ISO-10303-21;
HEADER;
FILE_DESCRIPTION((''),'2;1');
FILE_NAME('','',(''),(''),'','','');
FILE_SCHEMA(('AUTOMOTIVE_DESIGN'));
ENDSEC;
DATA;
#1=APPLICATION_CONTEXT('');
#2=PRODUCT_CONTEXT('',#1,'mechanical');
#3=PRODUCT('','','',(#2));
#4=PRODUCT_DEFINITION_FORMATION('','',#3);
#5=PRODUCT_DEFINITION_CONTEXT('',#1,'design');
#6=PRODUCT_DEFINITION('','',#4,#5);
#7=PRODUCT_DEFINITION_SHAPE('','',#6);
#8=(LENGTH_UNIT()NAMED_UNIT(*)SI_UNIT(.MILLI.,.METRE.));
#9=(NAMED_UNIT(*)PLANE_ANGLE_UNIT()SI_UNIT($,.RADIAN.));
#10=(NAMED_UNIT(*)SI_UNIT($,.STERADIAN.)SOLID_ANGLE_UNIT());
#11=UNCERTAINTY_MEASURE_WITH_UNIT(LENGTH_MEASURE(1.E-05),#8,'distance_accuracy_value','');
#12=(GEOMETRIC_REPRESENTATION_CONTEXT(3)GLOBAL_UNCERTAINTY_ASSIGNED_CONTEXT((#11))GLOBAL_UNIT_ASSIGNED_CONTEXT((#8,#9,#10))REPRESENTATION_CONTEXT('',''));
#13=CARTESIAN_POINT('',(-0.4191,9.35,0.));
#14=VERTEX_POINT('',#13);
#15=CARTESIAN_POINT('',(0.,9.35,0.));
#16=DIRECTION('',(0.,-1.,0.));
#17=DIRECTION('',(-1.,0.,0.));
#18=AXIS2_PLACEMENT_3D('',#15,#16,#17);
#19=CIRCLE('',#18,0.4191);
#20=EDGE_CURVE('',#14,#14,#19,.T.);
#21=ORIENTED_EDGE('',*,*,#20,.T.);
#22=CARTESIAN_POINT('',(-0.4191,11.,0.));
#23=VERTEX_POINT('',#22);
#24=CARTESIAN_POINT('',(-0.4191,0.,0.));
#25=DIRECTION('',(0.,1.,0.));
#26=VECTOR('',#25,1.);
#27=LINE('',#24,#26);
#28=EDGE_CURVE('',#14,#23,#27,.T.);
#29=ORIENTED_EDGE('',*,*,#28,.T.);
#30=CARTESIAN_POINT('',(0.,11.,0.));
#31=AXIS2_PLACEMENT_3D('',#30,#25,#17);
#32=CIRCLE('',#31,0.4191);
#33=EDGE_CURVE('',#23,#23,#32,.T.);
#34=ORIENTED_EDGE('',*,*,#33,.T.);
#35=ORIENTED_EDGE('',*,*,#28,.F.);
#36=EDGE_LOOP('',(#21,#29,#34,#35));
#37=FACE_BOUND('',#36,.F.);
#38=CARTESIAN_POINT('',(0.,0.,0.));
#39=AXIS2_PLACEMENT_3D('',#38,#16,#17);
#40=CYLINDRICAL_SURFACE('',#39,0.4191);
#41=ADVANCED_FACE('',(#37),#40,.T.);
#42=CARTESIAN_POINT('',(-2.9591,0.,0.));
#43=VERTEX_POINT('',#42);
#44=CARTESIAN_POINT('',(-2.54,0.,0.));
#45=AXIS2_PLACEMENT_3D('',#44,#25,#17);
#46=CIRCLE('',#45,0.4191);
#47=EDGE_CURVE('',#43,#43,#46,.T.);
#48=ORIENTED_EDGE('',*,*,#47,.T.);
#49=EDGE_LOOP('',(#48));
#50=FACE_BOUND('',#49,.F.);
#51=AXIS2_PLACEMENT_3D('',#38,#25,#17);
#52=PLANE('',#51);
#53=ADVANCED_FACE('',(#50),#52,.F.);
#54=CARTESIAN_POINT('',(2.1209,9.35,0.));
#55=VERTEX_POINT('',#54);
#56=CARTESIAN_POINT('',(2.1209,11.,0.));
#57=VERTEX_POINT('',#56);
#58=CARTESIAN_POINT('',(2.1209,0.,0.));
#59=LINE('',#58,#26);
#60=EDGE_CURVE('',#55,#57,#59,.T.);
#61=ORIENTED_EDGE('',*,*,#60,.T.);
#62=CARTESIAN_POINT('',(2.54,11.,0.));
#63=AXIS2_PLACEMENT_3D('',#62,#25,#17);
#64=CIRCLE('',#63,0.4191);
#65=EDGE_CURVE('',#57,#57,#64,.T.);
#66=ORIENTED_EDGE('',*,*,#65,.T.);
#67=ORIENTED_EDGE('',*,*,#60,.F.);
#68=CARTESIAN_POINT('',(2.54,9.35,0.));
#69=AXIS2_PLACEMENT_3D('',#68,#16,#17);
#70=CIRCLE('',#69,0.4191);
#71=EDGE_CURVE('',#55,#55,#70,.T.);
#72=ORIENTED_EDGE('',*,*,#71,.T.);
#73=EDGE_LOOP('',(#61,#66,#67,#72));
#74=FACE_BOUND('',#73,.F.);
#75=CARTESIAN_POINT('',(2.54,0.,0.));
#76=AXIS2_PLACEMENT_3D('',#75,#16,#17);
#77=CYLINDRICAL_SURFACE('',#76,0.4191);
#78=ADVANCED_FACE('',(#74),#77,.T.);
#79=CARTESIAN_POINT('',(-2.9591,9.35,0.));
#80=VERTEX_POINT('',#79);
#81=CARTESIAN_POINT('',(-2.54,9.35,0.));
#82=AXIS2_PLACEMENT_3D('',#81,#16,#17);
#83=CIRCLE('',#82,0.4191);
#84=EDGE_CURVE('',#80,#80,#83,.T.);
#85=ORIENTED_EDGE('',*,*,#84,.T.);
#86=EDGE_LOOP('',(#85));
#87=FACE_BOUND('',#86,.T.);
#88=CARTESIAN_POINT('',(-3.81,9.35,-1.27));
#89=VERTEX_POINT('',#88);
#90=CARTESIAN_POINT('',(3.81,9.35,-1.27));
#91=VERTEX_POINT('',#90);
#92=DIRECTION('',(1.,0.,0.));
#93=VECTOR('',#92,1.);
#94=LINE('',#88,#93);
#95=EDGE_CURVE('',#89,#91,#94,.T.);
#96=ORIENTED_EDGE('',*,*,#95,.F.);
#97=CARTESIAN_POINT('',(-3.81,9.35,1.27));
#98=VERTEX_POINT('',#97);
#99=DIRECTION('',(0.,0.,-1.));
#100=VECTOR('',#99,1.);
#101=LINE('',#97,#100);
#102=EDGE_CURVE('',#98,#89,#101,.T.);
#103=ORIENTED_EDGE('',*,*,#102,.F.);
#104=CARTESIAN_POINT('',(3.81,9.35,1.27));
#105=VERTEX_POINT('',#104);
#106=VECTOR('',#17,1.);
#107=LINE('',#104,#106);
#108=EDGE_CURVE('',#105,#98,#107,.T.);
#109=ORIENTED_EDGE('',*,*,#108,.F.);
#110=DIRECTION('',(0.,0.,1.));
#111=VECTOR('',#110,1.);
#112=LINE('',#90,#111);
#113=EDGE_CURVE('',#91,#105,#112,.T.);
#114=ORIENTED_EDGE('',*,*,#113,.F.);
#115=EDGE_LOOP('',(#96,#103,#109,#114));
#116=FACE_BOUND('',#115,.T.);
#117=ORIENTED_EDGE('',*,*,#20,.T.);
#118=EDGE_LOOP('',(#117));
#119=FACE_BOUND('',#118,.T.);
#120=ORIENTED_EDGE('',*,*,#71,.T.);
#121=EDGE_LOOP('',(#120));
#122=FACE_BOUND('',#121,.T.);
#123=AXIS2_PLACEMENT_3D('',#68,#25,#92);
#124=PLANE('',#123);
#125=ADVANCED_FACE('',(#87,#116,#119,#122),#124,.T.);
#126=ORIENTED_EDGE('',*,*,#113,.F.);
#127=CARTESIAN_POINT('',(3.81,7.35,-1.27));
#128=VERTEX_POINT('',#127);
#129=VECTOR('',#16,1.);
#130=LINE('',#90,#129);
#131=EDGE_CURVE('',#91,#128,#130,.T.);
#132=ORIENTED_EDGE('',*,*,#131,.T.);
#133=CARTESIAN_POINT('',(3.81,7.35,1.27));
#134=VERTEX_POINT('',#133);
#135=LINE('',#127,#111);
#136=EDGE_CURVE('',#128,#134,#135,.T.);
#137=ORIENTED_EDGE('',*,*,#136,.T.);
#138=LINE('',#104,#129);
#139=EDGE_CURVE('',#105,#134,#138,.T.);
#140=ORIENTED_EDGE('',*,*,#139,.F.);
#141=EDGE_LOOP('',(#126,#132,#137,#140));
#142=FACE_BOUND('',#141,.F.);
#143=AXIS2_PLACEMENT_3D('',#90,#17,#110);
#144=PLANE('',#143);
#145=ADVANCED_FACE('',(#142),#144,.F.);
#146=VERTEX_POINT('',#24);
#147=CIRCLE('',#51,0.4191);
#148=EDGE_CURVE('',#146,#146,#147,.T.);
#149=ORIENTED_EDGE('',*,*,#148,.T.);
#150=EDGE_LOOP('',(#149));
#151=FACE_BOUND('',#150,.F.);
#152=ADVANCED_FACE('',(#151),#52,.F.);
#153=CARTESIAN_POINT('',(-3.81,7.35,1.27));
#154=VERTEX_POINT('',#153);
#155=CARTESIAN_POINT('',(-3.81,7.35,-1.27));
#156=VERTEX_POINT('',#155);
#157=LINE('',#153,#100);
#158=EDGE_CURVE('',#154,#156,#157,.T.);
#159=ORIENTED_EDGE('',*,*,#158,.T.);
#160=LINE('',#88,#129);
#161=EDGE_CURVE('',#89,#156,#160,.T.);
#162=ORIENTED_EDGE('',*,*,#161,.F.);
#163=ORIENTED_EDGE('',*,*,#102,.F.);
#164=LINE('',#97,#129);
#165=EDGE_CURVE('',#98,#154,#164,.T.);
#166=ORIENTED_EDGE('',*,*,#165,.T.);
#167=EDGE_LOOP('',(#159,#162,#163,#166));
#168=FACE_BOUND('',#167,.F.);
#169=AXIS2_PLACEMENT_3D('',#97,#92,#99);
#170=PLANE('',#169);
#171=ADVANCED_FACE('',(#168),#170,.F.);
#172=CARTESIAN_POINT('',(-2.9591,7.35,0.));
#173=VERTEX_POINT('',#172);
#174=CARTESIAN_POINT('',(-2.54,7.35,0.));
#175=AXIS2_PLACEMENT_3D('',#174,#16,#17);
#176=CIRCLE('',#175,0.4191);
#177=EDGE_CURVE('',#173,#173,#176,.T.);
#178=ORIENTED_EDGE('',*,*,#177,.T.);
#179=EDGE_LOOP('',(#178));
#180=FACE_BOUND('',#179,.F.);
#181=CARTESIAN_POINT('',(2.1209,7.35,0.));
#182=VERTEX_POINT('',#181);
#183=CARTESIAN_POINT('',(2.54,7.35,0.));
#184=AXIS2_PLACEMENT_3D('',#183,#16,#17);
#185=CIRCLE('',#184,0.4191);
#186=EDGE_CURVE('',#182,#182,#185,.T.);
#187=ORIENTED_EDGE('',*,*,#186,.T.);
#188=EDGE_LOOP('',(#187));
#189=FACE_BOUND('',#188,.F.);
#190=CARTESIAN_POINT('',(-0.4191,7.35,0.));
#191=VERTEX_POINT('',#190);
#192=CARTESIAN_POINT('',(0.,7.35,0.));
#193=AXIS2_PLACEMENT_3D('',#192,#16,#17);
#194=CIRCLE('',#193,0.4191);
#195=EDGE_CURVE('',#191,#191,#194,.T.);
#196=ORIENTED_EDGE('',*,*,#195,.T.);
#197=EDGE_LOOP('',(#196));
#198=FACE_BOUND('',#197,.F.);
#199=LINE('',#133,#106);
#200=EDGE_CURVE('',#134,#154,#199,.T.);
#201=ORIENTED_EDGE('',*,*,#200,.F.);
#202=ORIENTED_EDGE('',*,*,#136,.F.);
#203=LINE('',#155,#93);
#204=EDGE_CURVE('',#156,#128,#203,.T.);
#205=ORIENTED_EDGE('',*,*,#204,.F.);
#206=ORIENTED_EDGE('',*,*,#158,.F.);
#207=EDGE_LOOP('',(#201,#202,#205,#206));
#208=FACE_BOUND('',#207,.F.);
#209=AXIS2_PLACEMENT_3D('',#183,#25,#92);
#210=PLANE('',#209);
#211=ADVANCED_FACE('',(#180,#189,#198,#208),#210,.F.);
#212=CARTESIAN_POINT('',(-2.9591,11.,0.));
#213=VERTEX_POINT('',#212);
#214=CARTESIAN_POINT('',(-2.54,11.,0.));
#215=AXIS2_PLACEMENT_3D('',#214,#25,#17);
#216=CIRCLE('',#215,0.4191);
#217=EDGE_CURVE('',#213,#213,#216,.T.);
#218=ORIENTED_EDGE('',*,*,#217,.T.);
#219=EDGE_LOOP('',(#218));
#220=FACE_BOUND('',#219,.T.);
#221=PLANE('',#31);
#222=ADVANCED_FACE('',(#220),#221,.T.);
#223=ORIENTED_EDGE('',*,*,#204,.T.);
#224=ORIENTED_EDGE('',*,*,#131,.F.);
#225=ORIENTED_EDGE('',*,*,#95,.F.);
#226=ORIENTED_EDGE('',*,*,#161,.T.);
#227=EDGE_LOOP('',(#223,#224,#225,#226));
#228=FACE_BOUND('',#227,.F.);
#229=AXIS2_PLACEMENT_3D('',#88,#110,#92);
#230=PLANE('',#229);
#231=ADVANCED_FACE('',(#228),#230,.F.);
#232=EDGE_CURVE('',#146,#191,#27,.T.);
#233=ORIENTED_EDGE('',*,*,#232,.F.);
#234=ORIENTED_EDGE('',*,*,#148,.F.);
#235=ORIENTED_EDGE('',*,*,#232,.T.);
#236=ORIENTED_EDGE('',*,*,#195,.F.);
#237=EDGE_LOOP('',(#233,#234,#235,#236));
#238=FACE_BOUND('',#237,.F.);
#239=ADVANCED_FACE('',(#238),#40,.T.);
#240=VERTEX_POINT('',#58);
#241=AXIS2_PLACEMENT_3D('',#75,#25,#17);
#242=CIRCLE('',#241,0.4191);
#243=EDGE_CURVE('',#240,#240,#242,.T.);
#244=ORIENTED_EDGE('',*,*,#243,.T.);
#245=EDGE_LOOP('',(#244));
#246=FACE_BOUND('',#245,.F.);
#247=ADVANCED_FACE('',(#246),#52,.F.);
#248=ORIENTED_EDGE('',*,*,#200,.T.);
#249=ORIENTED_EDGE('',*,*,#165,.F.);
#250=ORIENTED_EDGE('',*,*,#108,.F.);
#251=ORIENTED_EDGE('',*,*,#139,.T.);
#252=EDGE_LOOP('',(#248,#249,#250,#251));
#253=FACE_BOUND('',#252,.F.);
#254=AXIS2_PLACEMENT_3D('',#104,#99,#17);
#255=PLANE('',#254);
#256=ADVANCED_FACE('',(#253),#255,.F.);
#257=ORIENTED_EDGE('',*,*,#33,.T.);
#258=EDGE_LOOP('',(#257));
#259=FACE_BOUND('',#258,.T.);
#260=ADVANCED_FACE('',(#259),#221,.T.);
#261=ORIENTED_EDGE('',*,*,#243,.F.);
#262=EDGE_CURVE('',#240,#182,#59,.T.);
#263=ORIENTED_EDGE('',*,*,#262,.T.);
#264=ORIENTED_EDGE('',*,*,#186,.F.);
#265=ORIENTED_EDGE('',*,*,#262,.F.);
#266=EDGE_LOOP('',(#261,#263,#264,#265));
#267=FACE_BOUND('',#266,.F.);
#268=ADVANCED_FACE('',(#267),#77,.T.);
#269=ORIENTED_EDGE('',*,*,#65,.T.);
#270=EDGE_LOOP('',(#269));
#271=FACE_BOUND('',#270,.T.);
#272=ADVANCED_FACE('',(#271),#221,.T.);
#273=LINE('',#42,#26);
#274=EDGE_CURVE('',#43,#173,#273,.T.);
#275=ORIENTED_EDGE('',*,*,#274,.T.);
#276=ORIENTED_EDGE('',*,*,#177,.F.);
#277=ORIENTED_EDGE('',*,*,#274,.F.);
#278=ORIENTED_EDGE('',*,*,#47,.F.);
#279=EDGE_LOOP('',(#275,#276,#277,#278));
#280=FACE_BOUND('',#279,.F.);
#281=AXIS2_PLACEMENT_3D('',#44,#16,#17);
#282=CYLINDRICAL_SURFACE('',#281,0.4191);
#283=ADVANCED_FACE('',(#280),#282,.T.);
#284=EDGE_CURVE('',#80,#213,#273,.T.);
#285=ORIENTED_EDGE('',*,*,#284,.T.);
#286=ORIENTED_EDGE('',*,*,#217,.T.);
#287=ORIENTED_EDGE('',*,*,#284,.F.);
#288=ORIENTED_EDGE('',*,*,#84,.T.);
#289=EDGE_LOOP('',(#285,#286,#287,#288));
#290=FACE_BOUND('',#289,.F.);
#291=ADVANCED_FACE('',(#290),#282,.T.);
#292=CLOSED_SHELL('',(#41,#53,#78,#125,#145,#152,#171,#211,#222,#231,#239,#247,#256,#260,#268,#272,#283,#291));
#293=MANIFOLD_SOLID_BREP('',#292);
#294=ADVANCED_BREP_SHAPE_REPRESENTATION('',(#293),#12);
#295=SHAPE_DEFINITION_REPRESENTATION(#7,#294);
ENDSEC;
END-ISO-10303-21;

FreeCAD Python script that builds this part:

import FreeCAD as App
import Part
import Sketcher
from FreeCAD import Vector
Q = App.Units.Quantity

doc = App.newDocument("Part")
body = doc.addObject("PartDesign::Body", "Body")
body.AllowCompound = True

sketch1 = body.newObject("Sketcher::SketchObject", "Sketch")
sketch1.AttachmentSupport = (doc.getObject("XZ_Plane"), [""])
sketch1.MapMode = "FlatFace"
sketch1.addGeometry(Part.Circle(Vector(0, 0, 0), Vector(0, 0, 1), 0.42), False)
sketch1.addGeometry(Part.Circle(Vector(-2.54, 0, 0), Vector(0, 0, 1), 0.42), False)
sketch1.addGeometry(Part.Circle(Vector(2.54, 0, 0), Vector(0, 0, 1), 0.42), False)
sketch1.addConstraint(Sketcher.Constraint("Coincident", 0, 3, -1, 1))
sketch1.addConstraint(Sketcher.Constraint("Equal", 0, 1))
sketch1.addConstraint(Sketcher.Constraint("Equal", 1, 2))
sketch1.addConstraint(Sketcher.Constraint("Symmetric", 1, 3, 2, 3, -1, 1))
sketch1.addConstraint(Sketcher.Constraint("PointOnObject", 1, 3, -1))
sketch1.addConstraint(Sketcher.Constraint("Diameter", 0, Q("0.033 in")))
sketch1.addConstraint(Sketcher.Constraint("DistanceX", 1, 3, -1, 1, Q("0.1 in")))
pad1 = body.newObject("PartDesign::Pad", "Pad")
pad1.Profile = sketch1
pad1.Length = 11
pad1.Reversed = True

sketch2 = body.newObject("Sketcher::SketchObject", "Sketch001")
sketch2.AttachmentSupport = (doc.getObject("XZ_Plane"), [""])
sketch2.MapMode = "FlatFace"
sketch2.AttachmentOffset = App.Placement(Vector(0, 0, -0.3681102 * 25.4), App.Rotation())
sketch2.addGeometry(Part.LineSegment(Vector(3.8, -1.3, 0), Vector(-3.8, -1.3, 0)), False)
sketch2.addGeometry(Part.LineSegment(Vector(-3.8, -1.3, 0), Vector(-3.8, 1.3, 0)), False)
sketch2.addGeometry(Part.LineSegment(Vector(-3.8, 1.3, 0), Vector(3.8, 1.3, 0)), False)
sketch2.addGeometry(Part.LineSegment(Vector(3.8, 1.3, 0), Vector(3.8, -1.3, 0)), False)
sketch2.addConstraint(Sketcher.Constraint("Coincident", 0, 2, 1, 1))
sketch2.addConstraint(Sketcher.Constraint("Coincident", 1, 2, 2, 1))
sketch2.addConstraint(Sketcher.Constraint("Coincident", 2, 2, 3, 1))
sketch2.addConstraint(Sketcher.Constraint("Coincident", 3, 2, 0, 1))
sketch2.addConstraint(Sketcher.Constraint("Horizontal", 0))
sketch2.addConstraint(Sketcher.Constraint("Vertical", 1))
sketch2.addConstraint(Sketcher.Constraint("Horizontal", 2))
sketch2.addConstraint(Sketcher.Constraint("Vertical", 3))
sketch2.addConstraint(Sketcher.Constraint("Symmetric", 0, 2, 2, 2, -1, 1))
sketch2.addConstraint(Sketcher.Constraint("DistanceY", 1, 1, 1, 2, Q("0.1 in")))
sketch2.addConstraint(Sketcher.Constraint("DistanceX", 0, 2, -1, 1, Q("0.15 in")))
pad2 = body.newObject("PartDesign::Pad", "Pad001")
pad2.Profile = sketch2
pad2.Length = 2

doc.recompute()
